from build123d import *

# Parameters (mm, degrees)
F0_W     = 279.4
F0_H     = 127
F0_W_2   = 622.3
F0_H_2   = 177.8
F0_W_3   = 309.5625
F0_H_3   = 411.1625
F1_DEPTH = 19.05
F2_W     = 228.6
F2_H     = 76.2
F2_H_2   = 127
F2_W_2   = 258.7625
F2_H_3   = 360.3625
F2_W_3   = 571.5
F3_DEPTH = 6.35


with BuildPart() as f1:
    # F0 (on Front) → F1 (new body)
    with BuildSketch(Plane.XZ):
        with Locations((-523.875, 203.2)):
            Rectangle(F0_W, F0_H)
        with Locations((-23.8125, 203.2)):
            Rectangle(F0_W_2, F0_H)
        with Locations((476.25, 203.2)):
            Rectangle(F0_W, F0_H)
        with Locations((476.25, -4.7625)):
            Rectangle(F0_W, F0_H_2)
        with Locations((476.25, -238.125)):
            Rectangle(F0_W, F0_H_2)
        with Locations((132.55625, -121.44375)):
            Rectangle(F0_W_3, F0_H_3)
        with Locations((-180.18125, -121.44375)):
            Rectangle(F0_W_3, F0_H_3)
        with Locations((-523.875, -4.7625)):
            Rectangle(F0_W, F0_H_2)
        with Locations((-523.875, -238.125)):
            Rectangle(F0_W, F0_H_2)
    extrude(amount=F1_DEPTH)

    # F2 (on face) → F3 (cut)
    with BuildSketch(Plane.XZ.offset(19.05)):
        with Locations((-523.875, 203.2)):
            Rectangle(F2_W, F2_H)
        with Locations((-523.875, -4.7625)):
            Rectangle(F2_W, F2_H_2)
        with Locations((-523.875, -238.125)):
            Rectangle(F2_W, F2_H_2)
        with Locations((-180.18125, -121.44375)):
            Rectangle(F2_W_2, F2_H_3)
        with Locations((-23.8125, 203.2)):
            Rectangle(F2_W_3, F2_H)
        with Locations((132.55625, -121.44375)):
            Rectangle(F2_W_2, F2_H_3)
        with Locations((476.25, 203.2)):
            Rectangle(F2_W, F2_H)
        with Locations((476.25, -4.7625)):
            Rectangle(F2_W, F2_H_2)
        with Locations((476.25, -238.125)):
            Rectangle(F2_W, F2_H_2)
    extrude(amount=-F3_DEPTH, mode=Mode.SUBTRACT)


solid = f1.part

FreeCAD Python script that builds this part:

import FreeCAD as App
import Part
import Sketcher
Q = App.Units.Quantity


def add_polygon(sketch, points):
    """Adds a closed chain of lines whose ends are joined by coincident constraints."""
    first, n = sketch.GeometryCount, len(points)
    for a, b in zip(points, points[1:] + points[:1]):
        sketch.addGeometry(Part.LineSegment(App.Vector(*a, 0), App.Vector(*b, 0)), False)
    for i in range(n):
        sketch.addConstraint(Sketcher.Constraint("Coincident", first + i, 2, first + (i + 1) % n, 1))

doc = App.newDocument("Part")
body = doc.addObject("PartDesign::Body", "Body")
body.AllowCompound = True

# Sketch on XZ plane
sketch1 = body.newObject("Sketcher::SketchObject", "Sketch")
sketch1.AttachmentSupport = (doc.getObject("XZ_Plane"), [""])
sketch1.MapMode = "FlatFace"
add_polygon(sketch1, [(-664, 267), (-664, 140), (-384, 140), (-384, 267)])  # lines 0-3
add_polygon(sketch1, [(-335, 267), (-335, 140), (287, 140), (287, 267)])  # lines 4-7
add_polygon(sketch1, [(337, 267), (337, 140), (616, 140), (616, 267)])  # lines 8-11
add_polygon(sketch1, [(337, 84), (337, -94), (616, -94), (616, 84)])  # lines 12-15
add_polygon(sketch1, [(337, -149), (337, -327), (616, -327), (616, -149)])  # lines 16-19
add_polygon(sketch1, [(-22, 84), (-22, -327), (287, -327), (287, 84)])  # lines 20-23
add_polygon(sketch1, [(-335, 84), (-335, -327), (-25, -327), (-25, 84)])  # lines 24-27
add_polygon(sketch1, [(-664, 84), (-664, -94), (-384, -94), (-384, 84)])  # lines 28-31
add_polygon(sketch1, [(-664, -149), (-664, -327), (-384, -327), (-384, -149)])  # lines 32-35
sketch1.addConstraint(Sketcher.Constraint("Vertical", 0))
sketch1.addConstraint(Sketcher.Constraint("Horizontal", 1))
sketch1.addConstraint(Sketcher.Constraint("Vertical", 2))
sketch1.addConstraint(Sketcher.Constraint("Horizontal", 3))
sketch1.addConstraint(Sketcher.Constraint("Vertical", 4))
sketch1.addConstraint(Sketcher.Constraint("Horizontal", 5))
sketch1.addConstraint(Sketcher.Constraint("Vertical", 6))
sketch1.addConstraint(Sketcher.Constraint("Horizontal", 7))
sketch1.addConstraint(Sketcher.Constraint("Vertical", 8))
sketch1.addConstraint(Sketcher.Constraint("Horizontal", 9))
sketch1.addConstraint(Sketcher.Constraint("Vertical", 10))
sketch1.addConstraint(Sketcher.Constraint("Horizontal", 11))
sketch1.addConstraint(Sketcher.Constraint("Vertical", 12))
sketch1.addConstraint(Sketcher.Constraint("Horizontal", 13))
sketch1.addConstraint(Sketcher.Constraint("Vertical", 14))
sketch1.addConstraint(Sketcher.Constraint("Horizontal", 15))
sketch1.addConstraint(Sketcher.Constraint("Vertical", 16))
sketch1.addConstraint(Sketcher.Constraint("Horizontal", 17))
sketch1.addConstraint(Sketcher.Constraint("Vertical", 18))
sketch1.addConstraint(Sketcher.Constraint("Horizontal", 19))
sketch1.addConstraint(Sketcher.Constraint("Vertical", 20))
sketch1.addConstraint(Sketcher.Constraint("Horizontal", 21))
sketch1.addConstraint(Sketcher.Constraint("Vertical", 22))
sketch1.addConstraint(Sketcher.Constraint("Horizontal", 23))
sketch1.addConstraint(Sketcher.Constraint("Vertical", 24))
sketch1.addConstraint(Sketcher.Constraint("Horizontal", 25))
sketch1.addConstraint(Sketcher.Constraint("Vertical", 26))
sketch1.addConstraint(Sketcher.Constraint("Horizontal", 27))
sketch1.addConstraint(Sketcher.Constraint("Vertical", 28))
sketch1.addConstraint(Sketcher.Constraint("Horizontal", 29))
sketch1.addConstraint(Sketcher.Constraint("Vertical", 30))
sketch1.addConstraint(Sketcher.Constraint("Horizontal", 31))
sketch1.addConstraint(Sketcher.Constraint("Vertical", 32))
sketch1.addConstraint(Sketcher.Constraint("Horizontal", 33))
sketch1.addConstraint(Sketcher.Constraint("Vertical", 34))
sketch1.addConstraint(Sketcher.Constraint("Horizontal", 35))
sketch1.addConstraint(Sketcher.Constraint("Horizontal", 1, 2, 4, 2))
sketch1.addConstraint(Sketcher.Constraint("Horizontal", 3, 2, 6, 2))
sketch1.addConstraint(Sketcher.Constraint("Horizontal", 5, 2, 8, 2))
sketch1.addConstraint(Sketcher.Constraint("Horizontal", 7, 2, 10, 2))
sketch1.addConstraint(Sketcher.Constraint("Horizontal", 17, 2, 20, 2))
sketch1.addConstraint(Sketcher.Constraint("Horizontal", 15, 2, 22, 2))
sketch1.addConstraint(Sketcher.Constraint("Horizontal", 21, 2, 24, 2))
sketch1.addConstraint(Sketcher.Constraint("Horizontal", 23, 2, 26, 2))
sketch1.addConstraint(Sketcher.Constraint("Horizontal", 13, 2, 28, 2))
sketch1.addConstraint(Sketcher.Constraint("Horizontal", 27, 2, 30, 2))
sketch1.addConstraint(Sketcher.Constraint("Horizontal", 25, 2, 32, 2))
sketch1.addConstraint(Sketcher.Constraint("Horizontal", 19, 2, 34, 2))
sketch1.addConstraint(Sketcher.Constraint("Vertical", 11, 2, 12, 2))
sketch1.addConstraint(Sketcher.Constraint("Vertical", 10, 2, 13, 2))
sketch1.addConstraint(Sketcher.Constraint("Vertical", 15, 2, 16, 2))
sketch1.addConstraint(Sketcher.Constraint("Vertical", 14, 2, 17, 2))
sketch1.addConstraint(Sketcher.Constraint("Vertical", 6, 2, 21, 2))
sketch1.addConstraint(Sketcher.Constraint("Vertical", 7, 2, 24, 2))
sketch1.addConstraint(Sketcher.Constraint("Vertical", 3, 2, 28, 2))
sketch1.addConstraint(Sketcher.Constraint("Vertical", 2, 2, 29, 2))
sketch1.addConstraint(Sketcher.Constraint("Vertical", 31, 2, 32, 2))
sketch1.addConstraint(Sketcher.Constraint("Vertical", 30, 2, 33, 2))
sketch1.addConstraint(Sketcher.Constraint("Equal", 3, 9))
sketch1.addConstraint(Sketcher.Constraint("Equal", 23, 25))
sketch1.addConstraint(Sketcher.Constraint("Equal", 14, 16))
sketch1.addConstraint(Sketcher.Constraint("DistanceX", 1, 1, 1, 2, Q("11 in")))
sketch1.addConstraint(Sketcher.Constraint("DistanceY", 0, 2, 0, 1, Q("5 in")))
sketch1.addConstraint(Sketcher.Constraint("DistanceY", 12, 2, 12, 1, Q("7 in")))
sketch1.addConstraint(Sketcher.Constraint("DistanceX", 5, 1, 5, 2, Q("24.5 in")))
sketch1.addConstraint(Sketcher.Constraint("DistanceX", 25, 2, -1, 1, Q("1 in")))
sketch1.addConstraint(Sketcher.Constraint("DistanceY", -1, 1, 0, 2, Q("5.5 in")))
sketch1.addConstraint(Sketcher.Constraint("DistanceX", 21, 1, 21, 2, Q("12.1875 in")))
sketch1.addConstraint(Sketcher.Constraint("DistanceY", 20, 2, 20, 1, Q("16.1875 in")))
sketch1.addConstraint(Sketcher.Constraint("DistanceX", -1, 1, 8, 2, Q("13.25 in")))
sketch1.addConstraint(Sketcher.Constraint("DistanceX", 33, 2, 20, 2, Q("14.25 in")))
sketch1.addConstraint(Sketcher.Constraint("DistanceY", 12, 2, -1, 1, Q("3.6875 in")))
pad1 = body.newObject("PartDesign::Pad", "Pad")
pad1.Profile = sketch1
pad1.Length = Q("0.75 in")

# Sketch on XZ plane
sketch2 = body.newObject("Sketcher::SketchObject", "Sketch001")
sketch2.AttachmentSupport = (doc.getObject("XZ_Plane"), [""])
sketch2.MapMode = "FlatFace"
sketch2.AttachmentOffset = App.Placement(App.Vector(0, 0, 0.75 * 25.4), App.Rotation())
add_polygon(sketch2, [(-638, 241), (-638, 165), (-410, 165), (-410, 241)])  # lines 0-3
add_polygon(sketch2, [(-638, 59), (-638, -68), (-410, -68), (-410, 59)])  # lines 4-7
add_polygon(sketch2, [(-638, -175), (-638, -302), (-410, -302), (-410, -175)])  # lines 8-11
add_polygon(sketch2, [(-310, 59), (-310, -302), (-51, -302), (-51, 59)])  # lines 12-15
add_polygon(sketch2, [(-310, 241), (-310, 165), (262, 165), (262, 241)])  # lines 16-19
add_polygon(sketch2, [(3, 59), (3, -302), (262, -302), (262, 59)])  # lines 20-23
add_polygon(sketch2, [(362, 241), (362, 165), (591, 165), (591, 241)])  # lines 24-27
add_polygon(sketch2, [(362, 59), (362, -68), (591, -68), (591, 59)])  # lines 28-31
add_polygon(sketch2, [(362, -175), (362, -302), (591, -302), (591, -175)])  # lines 32-35
sketch2.addConstraint(Sketcher.Constraint("Vertical", 0))
sketch2.addConstraint(Sketcher.Constraint("Horizontal", 1))
sketch2.addConstraint(Sketcher.Constraint("Vertical", 2))
sketch2.addConstraint(Sketcher.Constraint("Horizontal", 3))
sketch2.addConstraint(Sketcher.Constraint("Vertical", 4))
sketch2.addConstraint(Sketcher.Constraint("Horizontal", 5))
sketch2.addConstraint(Sketcher.Constraint("Vertical", 6))
sketch2.addConstraint(Sketcher.Constraint("Horizontal", 7))
sketch2.addConstraint(Sketcher.Constraint("Vertical", 8))
sketch2.addConstraint(Sketcher.Constraint("Horizontal", 9))
sketch2.addConstraint(Sketcher.Constraint("Vertical", 10))
sketch2.addConstraint(Sketcher.Constraint("Horizontal", 11))
sketch2.addConstraint(Sketcher.Constraint("Vertical", 12))
sketch2.addConstraint(Sketcher.Constraint("Horizontal", 13))
sketch2.addConstraint(Sketcher.Constraint("Vertical", 14))
sketch2.addConstraint(Sketcher.Constraint("Horizontal", 15))
sketch2.addConstraint(Sketcher.Constraint("Vertical", 16))
sketch2.addConstraint(Sketcher.Constraint("Horizontal", 17))
sketch2.addConstraint(Sketcher.Constraint("Vertical", 18))
sketch2.addConstraint(Sketcher.Constraint("Horizontal", 19))
sketch2.addConstraint(Sketcher.Constraint("Vertical", 20))
sketch2.addConstraint(Sketcher.Constraint("Horizontal", 21))
sketch2.addConstraint(Sketcher.Constraint("Vertical", 22))
sketch2.addConstraint(Sketcher.Constraint("Horizontal", 23))
sketch2.addConstraint(Sketcher.Constraint("Vertical", 24))
sketch2.addConstraint(Sketcher.Constraint("Horizontal", 25))
sketch2.addConstraint(Sketcher.Constraint("Vertical", 26))
sketch2.addConstraint(Sketcher.Constraint("Horizontal", 27))
sketch2.addConstraint(Sketcher.Constraint("Vertical", 28))
sketch2.addConstraint(Sketcher.Constraint("Horizontal", 29))
sketch2.addConstraint(Sketcher.Constraint("Vertical", 30))
sketch2.addConstraint(Sketcher.Constraint("Horizontal", 31))
sketch2.addConstraint(Sketcher.Constraint("Vertical", 32))
sketch2.addConstraint(Sketcher.Constraint("Horizontal", 33))
sketch2.addConstraint(Sketcher.Constraint("Vertical", 34))
sketch2.addConstraint(Sketcher.Constraint("Horizontal", 35))
sketch2.addConstraint(Sketcher.Constraint("Horizontal", 9, 2, 12, 2))
sketch2.addConstraint(Sketcher.Constraint("Horizontal", 7, 2, 14, 2))
sketch2.addConstraint(Sketcher.Constraint("Horizontal", 1, 2, 16, 2))
sketch2.addConstraint(Sketcher.Constraint("Horizontal", 3, 2, 18, 2))
sketch2.addConstraint(Sketcher.Constraint("Horizontal", 13, 2, 20, 2))
sketch2.addConstraint(Sketcher.Constraint("Horizontal", 15, 2, 22, 2))
sketch2.addConstraint(Sketcher.Constraint("Horizontal", 17, 2, 24, 2))
sketch2.addConstraint(Sketcher.Constraint("Horizontal", 19, 2, 26, 2))
sketch2.addConstraint(Sketcher.Constraint("Horizontal", 5, 2, 28, 2))
sketch2.addConstraint(Sketcher.Constraint("Horizontal", 23, 2, 30, 2))
sketch2.addConstraint(Sketcher.Constraint("Horizontal", 21, 2, 32, 2))
sketch2.addConstraint(Sketcher.Constraint("Horizontal", 11, 2, 34, 2))
sketch2.addConstraint(Sketcher.Constraint("Vertical", 3, 2, 4, 2))
sketch2.addConstraint(Sketcher.Constraint("Vertical", 2, 2, 5, 2))
sketch2.addConstraint(Sketcher.Constraint("Vertical", 7, 2, 8, 2))
sketch2.addConstraint(Sketcher.Constraint("Vertical", 6, 2, 9, 2))
sketch2.addConstraint(Sketcher.Constraint("Vertical", 15, 2, 16, 2))
sketch2.addConstraint(Sketcher.Constraint("Vertical", 18, 2, 21, 2))
sketch2.addConstraint(Sketcher.Constraint("Vertical", 27, 2, 28, 2))
sketch2.addConstraint(Sketcher.Constraint("Vertical", 26, 2, 29, 2))
sketch2.addConstraint(Sketcher.Constraint("Vertical", 31, 2, 32, 2))
sketch2.addConstraint(Sketcher.Constraint("Vertical", 30, 2, 33, 2))
sketch2.addConstraint(Sketcher.Constraint("Equal", 15, 21))
sketch2.addConstraint(Sketcher.Constraint("Equal", 11, 25))
sketch2.addConstraint(Sketcher.Constraint("Equal", 6, 8))
sketch2.addConstraint(Sketcher.Constraint("DistanceX", 1, 1, 1, 2, Q("9 in")))
sketch2.addConstraint(Sketcher.Constraint("DistanceY", 0, 2, 0, 1, Q("3 in")))
sketch2.addConstraint(Sketcher.Constraint("DistanceY", 4, 2, 4, 1, Q("5 in")))
sketch2.addConstraint(Sketcher.Constraint("DistanceX", 17, 1, 17, 2, Q("22.5 in")))
sketch2.addConstraint(Sketcher.Constraint("DistanceX", 13, 2, -1, 1, Q("2 in")))
sketch2.addConstraint(Sketcher.Constraint("DistanceY", -1, 1, 0, 2, Q("6.5 in")))
sketch2.addConstraint(Sketcher.Constraint("DistanceX", 13, 1, 13, 2, Q("10.1875 in")))
sketch2.addConstraint(Sketcher.Constraint("DistanceY", 12, 2, 12, 1, Q("14.1875 in")))
sketch2.addConstraint(Sketcher.Constraint("DistanceX", -1, 1, 24, 2, Q("14.25 in")))
sketch2.addConstraint(Sketcher.Constraint("DistanceX", 9, 2, 20, 2, Q("16.25 in")))
sketch2.addConstraint(Sketcher.Constraint("DistanceY", 4, 2, -1, 1, Q("2.6875 in")))
pocket1 = body.newObject("PartDesign::Pocket", "Pocket")
pocket1.Profile = sketch2
pocket1.Length = Q("0.25 in")

doc.recompute()
